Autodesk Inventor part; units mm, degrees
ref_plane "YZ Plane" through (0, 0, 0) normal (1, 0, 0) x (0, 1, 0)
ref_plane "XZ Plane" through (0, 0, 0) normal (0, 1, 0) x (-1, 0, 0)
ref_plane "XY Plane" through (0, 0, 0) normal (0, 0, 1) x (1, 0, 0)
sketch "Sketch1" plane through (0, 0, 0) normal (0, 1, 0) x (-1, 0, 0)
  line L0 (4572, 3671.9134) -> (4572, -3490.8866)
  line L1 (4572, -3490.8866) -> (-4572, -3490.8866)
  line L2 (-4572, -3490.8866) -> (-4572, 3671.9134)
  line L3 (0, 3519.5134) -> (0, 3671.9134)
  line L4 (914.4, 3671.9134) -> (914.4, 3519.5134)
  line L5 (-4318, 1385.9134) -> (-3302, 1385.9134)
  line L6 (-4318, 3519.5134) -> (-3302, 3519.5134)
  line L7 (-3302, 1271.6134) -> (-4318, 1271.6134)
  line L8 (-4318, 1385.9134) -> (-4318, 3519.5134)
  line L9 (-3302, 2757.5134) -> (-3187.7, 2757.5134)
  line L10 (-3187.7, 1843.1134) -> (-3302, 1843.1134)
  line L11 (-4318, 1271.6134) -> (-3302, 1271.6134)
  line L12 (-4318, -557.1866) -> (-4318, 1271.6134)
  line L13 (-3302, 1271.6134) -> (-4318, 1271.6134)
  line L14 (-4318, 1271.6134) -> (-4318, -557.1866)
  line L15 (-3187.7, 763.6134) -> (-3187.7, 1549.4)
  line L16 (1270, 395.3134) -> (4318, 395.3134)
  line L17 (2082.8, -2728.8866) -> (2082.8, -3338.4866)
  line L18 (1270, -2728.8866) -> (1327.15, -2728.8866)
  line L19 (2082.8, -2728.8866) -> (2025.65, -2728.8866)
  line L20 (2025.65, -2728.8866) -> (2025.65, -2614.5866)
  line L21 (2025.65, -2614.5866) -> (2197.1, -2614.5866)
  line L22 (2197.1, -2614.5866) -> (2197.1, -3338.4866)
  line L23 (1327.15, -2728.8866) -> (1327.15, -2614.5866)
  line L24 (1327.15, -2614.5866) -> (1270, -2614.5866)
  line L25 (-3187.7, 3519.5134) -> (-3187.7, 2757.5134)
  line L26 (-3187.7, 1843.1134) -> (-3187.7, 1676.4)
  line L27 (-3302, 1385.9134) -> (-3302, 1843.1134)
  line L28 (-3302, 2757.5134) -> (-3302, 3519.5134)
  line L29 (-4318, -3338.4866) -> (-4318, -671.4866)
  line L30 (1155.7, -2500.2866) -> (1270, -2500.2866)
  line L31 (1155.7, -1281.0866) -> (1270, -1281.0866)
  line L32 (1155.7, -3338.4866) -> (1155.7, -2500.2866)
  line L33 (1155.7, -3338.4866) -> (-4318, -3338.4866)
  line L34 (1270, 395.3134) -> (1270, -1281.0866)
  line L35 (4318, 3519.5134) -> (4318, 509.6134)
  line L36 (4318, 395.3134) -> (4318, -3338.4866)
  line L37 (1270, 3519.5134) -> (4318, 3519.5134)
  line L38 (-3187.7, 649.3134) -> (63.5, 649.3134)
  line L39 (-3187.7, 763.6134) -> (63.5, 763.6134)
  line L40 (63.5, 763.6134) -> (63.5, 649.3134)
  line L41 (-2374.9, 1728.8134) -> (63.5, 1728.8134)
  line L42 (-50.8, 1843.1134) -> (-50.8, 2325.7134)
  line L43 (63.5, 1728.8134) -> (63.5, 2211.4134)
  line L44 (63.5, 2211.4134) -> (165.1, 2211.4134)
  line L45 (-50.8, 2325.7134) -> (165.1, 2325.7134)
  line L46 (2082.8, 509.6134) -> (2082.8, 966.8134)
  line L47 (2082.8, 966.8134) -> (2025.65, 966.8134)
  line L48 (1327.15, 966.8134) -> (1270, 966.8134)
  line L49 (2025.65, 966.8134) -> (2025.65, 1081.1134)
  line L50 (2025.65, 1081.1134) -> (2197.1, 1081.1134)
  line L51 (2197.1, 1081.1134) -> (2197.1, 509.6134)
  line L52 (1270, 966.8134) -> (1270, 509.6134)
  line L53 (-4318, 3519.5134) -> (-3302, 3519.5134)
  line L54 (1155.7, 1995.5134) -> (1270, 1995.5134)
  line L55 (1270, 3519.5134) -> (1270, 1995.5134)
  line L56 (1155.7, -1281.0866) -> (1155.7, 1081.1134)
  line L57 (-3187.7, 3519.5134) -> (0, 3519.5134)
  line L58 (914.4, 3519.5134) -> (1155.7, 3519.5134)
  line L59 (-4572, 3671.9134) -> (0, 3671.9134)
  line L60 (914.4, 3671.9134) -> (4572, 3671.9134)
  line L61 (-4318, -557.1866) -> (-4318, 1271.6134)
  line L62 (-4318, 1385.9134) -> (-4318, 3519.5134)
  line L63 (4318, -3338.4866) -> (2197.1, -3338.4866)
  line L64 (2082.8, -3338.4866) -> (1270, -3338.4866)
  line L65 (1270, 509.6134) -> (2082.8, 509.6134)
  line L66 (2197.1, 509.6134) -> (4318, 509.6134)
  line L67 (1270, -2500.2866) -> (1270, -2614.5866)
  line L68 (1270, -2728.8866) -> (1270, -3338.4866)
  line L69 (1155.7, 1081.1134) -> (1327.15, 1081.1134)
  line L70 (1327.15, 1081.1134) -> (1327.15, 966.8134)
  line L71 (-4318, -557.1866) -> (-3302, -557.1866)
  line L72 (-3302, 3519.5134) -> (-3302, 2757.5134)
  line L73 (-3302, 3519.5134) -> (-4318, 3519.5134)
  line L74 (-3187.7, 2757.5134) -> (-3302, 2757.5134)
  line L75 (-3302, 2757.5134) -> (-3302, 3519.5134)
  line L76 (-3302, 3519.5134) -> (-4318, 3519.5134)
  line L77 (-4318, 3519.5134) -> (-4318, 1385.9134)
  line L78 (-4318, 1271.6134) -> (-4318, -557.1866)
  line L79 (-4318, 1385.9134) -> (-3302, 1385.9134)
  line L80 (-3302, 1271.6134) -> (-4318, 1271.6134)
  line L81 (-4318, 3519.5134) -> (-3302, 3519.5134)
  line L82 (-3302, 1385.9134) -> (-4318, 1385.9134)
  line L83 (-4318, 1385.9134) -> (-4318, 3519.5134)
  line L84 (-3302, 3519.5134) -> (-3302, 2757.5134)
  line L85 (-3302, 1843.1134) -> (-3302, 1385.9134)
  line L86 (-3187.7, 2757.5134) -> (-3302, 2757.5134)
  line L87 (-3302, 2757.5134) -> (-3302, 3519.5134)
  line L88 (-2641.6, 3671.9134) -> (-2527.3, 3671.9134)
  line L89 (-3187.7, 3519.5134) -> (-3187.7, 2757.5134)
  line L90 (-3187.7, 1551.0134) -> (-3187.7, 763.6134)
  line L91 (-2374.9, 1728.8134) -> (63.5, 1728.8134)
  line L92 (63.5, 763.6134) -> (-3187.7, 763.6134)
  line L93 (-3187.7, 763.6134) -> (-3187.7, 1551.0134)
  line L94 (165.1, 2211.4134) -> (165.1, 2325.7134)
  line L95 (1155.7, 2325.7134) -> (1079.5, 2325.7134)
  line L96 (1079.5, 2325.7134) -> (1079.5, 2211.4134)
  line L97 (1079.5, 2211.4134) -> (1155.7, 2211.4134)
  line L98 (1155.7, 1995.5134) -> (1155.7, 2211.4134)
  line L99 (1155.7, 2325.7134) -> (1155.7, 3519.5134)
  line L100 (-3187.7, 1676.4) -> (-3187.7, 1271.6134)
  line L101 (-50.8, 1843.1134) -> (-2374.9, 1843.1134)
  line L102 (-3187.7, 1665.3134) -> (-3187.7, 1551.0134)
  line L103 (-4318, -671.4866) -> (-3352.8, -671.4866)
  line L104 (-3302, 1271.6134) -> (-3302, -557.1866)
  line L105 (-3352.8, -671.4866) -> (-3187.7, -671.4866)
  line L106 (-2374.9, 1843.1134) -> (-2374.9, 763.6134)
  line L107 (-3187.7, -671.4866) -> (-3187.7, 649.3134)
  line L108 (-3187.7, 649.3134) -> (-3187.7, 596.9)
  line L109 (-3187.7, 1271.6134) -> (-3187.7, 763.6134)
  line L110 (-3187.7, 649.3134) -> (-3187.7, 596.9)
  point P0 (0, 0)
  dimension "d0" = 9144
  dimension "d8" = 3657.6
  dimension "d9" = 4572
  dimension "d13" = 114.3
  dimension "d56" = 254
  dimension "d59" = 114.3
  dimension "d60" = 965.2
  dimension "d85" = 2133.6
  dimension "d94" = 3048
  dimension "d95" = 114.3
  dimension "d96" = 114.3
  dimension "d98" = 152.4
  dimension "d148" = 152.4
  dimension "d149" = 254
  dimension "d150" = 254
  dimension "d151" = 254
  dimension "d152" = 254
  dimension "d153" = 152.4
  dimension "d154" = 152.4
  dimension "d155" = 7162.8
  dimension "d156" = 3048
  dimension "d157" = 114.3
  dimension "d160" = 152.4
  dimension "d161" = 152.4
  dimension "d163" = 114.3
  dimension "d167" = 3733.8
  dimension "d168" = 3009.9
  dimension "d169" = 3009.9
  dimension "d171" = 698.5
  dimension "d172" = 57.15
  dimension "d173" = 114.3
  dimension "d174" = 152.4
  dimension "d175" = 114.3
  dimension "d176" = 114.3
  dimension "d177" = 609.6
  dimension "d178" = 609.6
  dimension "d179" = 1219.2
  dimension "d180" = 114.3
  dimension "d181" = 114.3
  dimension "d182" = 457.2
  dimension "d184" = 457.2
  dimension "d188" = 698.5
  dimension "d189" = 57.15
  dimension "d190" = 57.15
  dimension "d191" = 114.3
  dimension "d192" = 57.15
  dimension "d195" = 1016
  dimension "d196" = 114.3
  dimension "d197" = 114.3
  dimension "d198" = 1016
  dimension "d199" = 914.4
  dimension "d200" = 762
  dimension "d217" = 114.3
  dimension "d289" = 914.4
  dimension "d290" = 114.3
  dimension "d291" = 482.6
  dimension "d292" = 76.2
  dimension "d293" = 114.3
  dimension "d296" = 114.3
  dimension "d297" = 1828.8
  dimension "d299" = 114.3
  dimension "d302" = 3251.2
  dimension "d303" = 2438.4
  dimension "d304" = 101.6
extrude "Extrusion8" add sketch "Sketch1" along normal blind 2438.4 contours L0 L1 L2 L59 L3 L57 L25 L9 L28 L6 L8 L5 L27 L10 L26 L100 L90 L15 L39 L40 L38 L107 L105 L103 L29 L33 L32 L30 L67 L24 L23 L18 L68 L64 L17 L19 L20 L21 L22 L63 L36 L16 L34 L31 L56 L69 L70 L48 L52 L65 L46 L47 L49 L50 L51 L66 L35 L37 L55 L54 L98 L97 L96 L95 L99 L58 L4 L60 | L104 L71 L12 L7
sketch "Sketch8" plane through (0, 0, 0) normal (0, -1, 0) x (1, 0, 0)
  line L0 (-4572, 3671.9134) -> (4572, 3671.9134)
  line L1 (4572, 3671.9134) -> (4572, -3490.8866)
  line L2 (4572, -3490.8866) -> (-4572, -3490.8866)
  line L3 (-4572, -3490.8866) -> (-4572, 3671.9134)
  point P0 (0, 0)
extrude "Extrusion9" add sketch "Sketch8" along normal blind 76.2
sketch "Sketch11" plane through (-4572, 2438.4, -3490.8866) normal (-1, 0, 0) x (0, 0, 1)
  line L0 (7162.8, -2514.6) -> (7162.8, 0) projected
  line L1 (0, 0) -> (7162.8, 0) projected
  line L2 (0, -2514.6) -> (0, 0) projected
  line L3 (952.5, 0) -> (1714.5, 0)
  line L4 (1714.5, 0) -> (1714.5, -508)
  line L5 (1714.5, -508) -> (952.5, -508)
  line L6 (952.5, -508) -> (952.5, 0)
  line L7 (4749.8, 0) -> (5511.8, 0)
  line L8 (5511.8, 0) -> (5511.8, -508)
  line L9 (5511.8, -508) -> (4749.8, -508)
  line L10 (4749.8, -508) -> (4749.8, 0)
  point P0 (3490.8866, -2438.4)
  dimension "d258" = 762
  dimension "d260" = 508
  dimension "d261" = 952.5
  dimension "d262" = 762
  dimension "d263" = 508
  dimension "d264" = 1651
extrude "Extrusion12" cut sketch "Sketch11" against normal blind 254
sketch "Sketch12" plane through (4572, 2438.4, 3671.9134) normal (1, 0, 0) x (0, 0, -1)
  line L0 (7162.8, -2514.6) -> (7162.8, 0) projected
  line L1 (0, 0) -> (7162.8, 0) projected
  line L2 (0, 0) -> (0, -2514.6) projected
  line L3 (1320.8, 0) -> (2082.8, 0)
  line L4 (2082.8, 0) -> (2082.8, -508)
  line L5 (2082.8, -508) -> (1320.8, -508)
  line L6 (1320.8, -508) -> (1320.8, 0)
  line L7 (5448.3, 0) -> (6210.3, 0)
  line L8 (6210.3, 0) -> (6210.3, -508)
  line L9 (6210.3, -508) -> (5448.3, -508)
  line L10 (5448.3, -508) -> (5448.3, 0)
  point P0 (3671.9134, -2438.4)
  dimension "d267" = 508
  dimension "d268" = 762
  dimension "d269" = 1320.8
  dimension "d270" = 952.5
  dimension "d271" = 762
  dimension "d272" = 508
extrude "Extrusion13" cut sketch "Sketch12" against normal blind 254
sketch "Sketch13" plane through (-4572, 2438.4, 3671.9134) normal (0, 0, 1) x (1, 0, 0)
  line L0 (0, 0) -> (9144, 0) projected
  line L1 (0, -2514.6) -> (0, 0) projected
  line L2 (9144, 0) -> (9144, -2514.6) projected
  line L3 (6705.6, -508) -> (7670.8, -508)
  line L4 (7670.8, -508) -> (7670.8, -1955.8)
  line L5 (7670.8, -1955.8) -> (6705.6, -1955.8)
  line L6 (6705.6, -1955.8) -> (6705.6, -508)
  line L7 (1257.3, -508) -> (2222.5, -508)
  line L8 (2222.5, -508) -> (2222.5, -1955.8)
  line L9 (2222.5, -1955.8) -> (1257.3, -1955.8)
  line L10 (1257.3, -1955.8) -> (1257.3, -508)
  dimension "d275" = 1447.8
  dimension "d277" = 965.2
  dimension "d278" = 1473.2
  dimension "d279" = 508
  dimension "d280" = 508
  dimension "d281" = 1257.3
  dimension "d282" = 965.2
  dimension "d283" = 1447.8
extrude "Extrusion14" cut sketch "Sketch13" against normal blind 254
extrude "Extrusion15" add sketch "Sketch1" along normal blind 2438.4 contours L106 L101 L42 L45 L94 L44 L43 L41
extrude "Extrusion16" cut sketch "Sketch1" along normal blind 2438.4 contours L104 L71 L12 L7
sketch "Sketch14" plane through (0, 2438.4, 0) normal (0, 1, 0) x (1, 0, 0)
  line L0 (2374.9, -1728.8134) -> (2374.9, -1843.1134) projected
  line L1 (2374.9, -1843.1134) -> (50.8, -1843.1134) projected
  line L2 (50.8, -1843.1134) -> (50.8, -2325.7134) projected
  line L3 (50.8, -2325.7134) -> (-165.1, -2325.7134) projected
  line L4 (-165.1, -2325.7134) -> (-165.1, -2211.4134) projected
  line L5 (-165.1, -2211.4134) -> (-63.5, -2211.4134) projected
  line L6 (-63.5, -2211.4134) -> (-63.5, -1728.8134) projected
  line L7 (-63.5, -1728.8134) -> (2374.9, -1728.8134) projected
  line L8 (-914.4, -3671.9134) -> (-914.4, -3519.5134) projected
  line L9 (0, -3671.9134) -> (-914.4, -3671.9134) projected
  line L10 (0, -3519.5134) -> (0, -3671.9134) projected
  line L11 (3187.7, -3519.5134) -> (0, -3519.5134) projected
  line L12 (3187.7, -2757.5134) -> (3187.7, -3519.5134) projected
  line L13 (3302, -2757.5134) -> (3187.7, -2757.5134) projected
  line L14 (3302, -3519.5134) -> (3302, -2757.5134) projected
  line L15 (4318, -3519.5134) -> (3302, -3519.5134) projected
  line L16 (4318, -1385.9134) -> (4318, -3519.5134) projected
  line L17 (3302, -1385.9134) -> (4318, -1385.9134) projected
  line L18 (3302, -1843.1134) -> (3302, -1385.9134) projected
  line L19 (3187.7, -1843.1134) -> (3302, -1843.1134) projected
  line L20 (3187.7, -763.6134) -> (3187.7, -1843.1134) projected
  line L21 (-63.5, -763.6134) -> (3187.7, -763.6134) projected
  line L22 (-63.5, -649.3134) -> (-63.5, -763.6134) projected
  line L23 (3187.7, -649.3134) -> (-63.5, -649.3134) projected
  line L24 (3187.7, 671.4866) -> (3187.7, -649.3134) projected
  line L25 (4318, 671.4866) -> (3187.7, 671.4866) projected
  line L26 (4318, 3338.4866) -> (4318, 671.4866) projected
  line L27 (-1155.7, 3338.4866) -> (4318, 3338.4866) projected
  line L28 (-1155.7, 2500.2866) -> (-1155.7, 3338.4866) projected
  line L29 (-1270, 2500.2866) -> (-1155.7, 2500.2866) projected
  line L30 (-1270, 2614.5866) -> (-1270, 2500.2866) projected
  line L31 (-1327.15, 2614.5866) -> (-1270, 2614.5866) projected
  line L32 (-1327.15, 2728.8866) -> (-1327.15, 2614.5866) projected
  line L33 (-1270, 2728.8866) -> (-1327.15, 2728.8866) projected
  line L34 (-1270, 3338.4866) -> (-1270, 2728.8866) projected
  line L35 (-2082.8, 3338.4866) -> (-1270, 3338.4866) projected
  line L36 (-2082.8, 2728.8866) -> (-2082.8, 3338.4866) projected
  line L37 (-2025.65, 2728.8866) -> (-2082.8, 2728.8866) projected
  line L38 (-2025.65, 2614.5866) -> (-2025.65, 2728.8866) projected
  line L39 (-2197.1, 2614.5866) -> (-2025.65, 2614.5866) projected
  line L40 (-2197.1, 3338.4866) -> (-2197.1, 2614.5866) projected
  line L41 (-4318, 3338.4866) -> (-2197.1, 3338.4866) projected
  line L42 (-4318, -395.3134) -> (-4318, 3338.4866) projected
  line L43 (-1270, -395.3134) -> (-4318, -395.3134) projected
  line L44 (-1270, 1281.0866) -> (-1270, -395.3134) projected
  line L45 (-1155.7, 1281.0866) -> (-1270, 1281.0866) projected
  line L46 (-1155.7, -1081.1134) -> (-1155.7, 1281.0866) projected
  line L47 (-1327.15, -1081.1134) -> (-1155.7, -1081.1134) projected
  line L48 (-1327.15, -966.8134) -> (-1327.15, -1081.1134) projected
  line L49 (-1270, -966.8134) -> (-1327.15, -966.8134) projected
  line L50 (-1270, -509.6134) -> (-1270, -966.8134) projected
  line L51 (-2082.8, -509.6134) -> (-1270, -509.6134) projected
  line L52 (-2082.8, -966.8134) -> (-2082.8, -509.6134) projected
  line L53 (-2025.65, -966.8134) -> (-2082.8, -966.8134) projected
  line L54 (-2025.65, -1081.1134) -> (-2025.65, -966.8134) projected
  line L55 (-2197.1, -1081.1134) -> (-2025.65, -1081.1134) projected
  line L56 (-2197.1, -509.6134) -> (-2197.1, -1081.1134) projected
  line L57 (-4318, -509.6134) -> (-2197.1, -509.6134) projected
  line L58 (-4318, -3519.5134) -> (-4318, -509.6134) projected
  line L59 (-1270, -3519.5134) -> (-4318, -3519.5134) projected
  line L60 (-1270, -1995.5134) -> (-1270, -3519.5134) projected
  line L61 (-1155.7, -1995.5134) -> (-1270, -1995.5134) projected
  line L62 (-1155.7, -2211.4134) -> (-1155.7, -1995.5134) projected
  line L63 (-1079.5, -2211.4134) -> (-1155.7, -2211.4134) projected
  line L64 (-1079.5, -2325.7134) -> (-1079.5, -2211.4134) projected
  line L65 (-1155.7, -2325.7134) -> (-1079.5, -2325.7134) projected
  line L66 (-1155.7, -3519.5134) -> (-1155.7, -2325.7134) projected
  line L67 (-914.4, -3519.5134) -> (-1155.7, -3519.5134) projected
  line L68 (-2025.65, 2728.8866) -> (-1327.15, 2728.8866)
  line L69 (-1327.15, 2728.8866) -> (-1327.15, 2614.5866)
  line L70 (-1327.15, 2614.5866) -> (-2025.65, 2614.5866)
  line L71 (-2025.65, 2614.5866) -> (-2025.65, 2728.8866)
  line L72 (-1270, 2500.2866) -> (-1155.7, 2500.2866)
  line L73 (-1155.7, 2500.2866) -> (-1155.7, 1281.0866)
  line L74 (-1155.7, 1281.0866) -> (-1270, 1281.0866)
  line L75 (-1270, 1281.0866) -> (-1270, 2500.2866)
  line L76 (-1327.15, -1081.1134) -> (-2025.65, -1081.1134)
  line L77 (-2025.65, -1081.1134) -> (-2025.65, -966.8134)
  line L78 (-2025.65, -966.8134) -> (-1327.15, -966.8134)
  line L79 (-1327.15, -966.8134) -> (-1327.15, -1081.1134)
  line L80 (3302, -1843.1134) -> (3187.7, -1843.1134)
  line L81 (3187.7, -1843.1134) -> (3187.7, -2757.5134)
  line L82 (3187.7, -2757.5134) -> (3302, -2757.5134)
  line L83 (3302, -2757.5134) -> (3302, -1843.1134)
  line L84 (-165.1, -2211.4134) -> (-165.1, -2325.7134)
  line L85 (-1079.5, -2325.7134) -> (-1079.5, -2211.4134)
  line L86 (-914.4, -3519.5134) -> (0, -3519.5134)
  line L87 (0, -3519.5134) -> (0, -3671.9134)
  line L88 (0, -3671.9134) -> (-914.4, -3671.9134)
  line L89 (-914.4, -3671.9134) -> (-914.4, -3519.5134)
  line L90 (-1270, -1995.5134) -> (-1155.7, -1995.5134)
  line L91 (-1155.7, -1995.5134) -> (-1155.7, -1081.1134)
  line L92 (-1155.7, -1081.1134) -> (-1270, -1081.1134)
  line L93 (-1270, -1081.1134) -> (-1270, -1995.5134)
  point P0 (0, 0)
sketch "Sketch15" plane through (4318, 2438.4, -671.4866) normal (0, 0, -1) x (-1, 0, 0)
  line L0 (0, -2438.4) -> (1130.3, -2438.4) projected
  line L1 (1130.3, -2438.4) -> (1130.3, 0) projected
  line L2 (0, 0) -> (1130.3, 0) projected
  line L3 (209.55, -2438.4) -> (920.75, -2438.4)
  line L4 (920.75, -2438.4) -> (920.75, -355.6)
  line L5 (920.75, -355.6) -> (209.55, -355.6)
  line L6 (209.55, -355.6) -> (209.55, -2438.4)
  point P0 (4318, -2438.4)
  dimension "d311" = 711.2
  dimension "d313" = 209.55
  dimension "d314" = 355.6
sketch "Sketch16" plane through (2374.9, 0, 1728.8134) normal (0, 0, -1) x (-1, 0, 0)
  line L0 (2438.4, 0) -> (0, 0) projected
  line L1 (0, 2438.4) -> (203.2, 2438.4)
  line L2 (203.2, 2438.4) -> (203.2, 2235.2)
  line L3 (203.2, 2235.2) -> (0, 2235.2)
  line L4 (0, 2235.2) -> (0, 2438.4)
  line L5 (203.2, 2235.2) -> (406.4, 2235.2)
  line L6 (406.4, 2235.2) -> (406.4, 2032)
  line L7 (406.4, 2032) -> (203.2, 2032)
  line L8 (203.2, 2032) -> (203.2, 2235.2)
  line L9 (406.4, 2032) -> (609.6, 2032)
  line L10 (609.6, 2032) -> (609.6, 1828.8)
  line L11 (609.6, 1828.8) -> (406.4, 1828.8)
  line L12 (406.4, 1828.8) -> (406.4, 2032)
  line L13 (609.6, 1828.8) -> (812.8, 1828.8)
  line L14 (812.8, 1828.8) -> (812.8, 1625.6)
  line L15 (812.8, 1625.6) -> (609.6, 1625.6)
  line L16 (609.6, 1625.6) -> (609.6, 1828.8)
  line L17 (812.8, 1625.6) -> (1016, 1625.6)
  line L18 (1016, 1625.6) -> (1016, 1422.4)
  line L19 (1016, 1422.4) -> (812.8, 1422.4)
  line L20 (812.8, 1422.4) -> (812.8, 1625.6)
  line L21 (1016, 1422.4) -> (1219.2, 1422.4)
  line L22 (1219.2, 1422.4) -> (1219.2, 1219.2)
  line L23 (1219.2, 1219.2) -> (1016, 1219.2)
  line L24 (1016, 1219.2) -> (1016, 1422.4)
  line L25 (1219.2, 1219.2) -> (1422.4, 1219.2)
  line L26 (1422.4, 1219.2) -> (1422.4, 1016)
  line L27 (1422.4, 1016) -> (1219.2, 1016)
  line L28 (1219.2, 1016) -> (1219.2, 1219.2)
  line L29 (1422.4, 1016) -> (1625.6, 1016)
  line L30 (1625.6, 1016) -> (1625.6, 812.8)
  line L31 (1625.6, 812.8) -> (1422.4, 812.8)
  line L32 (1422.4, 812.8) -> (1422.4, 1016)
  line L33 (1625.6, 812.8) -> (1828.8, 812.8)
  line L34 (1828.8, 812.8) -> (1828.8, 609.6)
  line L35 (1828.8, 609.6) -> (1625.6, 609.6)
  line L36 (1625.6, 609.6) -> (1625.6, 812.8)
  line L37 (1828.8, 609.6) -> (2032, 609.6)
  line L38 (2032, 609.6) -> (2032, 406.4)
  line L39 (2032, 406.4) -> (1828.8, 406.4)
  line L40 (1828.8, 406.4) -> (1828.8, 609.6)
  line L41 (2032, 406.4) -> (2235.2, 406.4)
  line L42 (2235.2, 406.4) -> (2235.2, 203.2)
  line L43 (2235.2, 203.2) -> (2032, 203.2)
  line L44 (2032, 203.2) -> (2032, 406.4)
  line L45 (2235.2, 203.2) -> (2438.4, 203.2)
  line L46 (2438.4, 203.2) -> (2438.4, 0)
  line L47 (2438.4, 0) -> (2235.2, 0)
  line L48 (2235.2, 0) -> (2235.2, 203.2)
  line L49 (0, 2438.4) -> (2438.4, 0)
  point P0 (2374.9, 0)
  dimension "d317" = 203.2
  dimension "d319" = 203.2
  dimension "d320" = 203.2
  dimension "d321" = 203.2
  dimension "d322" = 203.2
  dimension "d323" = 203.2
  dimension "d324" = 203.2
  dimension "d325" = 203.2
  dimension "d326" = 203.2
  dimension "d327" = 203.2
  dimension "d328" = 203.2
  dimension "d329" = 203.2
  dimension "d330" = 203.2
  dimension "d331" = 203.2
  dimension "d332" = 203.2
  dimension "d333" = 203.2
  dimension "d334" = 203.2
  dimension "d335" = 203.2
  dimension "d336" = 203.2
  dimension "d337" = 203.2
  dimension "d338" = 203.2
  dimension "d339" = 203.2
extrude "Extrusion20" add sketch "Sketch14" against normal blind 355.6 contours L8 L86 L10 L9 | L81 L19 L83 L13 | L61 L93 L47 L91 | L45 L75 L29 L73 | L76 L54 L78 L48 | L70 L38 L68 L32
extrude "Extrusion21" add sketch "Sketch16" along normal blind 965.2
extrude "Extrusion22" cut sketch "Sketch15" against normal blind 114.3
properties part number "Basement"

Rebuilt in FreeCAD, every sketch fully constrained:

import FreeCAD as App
import Part
import Sketcher

V = App.Vector
Q = App.Units.Quantity


def add_polygon(sketch, points):
    """Adds a closed chain of lines whose ends are joined by coincident constraints."""
    first, n = sketch.GeometryCount, len(points)
    for a, b in zip(points, points[1:] + points[:1]):
        sketch.addGeometry(Part.LineSegment(App.Vector(*a, 0), App.Vector(*b, 0)), False)
    for i in range(n):
        sketch.addConstraint(Sketcher.Constraint("Coincident", first + i, 2, first + (i + 1) % n, 1))

doc = App.newDocument("Part")
body = doc.addObject("PartDesign::Body", "Body")

sketch1 = doc.addObject("Sketcher::SketchObject", "Sketch")
body.addObject(sketch1)
sketch1.AttachmentSupport = (doc.XZ_Plane, [""])
sketch1.MapMode = "FlatFace"
add_polygon(sketch1, [(-4572, -3490.8866), (-4572, 3671.9134), (-914.4, 3671.9134), (-914.4, 3519.5134), (-1155.7, 3519.5134), (-1155.7, 2325.7134), (-1079.5, 2325.7134), (-1079.5, 2211.4134), (-1155.7, 2211.4134), (-1155.7, 1995.5134), (-1270, 1995.5134), (-1270, 3519.5134), (-4318, 3519.5134), (-4318, 509.6134), (-2197.1, 509.6134), (-2197.1, 1081.1134), (-2025.65, 1081.1134), (-2025.65, 966.8134), (-2082.8, 966.8134), (-2082.8, 509.6134), (-1270, 509.6134), (-1270, 966.8134), (-1327.15, 966.8134), (-1327.15, 1081.1134), (-1155.7, 1081.1134), (-1155.7, -1281.0866), (-1270, -1281.0866), (-1270, 395.3134), (-4318, 395.3134), (-4318, -3338.4866), (-2197.1, -3338.4866), (-2197.1, -2614.5866), (-2025.65, -2614.5866), (-2025.65, -2728.8866), (-2082.8, -2728.8866), (-2082.8, -3338.4866), (-1270, -3338.4866), (-1270, -2728.8866), (-1327.15, -2728.8866), (-1327.15, -2614.5866), (-1270, -2614.5866), (-1270, -2500.2866), (-1155.7, -2500.2866), (-1155.7, -3338.4866), (4318, -3338.4866), (4318, -671.4866), (3187.7, -671.4866), (3187.7, 649.3134), (-63.5, 649.3134), (-63.5, 763.6134), (3187.7, 763.6134), (3187.7, 1843.1134), (3302, 1843.1134), (3302, 1385.9134), (4318, 1385.9134), (4318, 3519.5134), (3302, 3519.5134), (3302, 2757.5134), (3187.7, 2757.5134), (3187.7, 3519.5134), (0, 3519.5134), (0, 3671.9134), (4572, 3671.9134), (4572, -3490.8866)])
sketch1.addConstraint([
    Sketcher.Constraint("Vertical", 0),
    Sketcher.Constraint("Horizontal", 1),
    Sketcher.Constraint("Vertical", 2),
    Sketcher.Constraint("Horizontal", 3),
    Sketcher.Constraint("Vertical", 4),
    Sketcher.Constraint("Horizontal", 5),
    Sketcher.Constraint("Vertical", 6),
    Sketcher.Constraint("Horizontal", 7),
    Sketcher.Constraint("Vertical", 8),
    Sketcher.Constraint("Horizontal", 9),
    Sketcher.Constraint("Vertical", 10),
    Sketcher.Constraint("Horizontal", 11),
    Sketcher.Constraint("Vertical", 12),
    Sketcher.Constraint("Horizontal", 13),
    Sketcher.Constraint("Vertical", 14),
    Sketcher.Constraint("Horizontal", 15),
    Sketcher.Constraint("Vertical", 16),
    Sketcher.Constraint("Horizontal", 17),
    Sketcher.Constraint("Vertical", 18),
    Sketcher.Constraint("Horizontal", 19),
    Sketcher.Constraint("Vertical", 20),
    Sketcher.Constraint("Horizontal", 21),
    Sketcher.Constraint("Vertical", 22),
    Sketcher.Constraint("Horizontal", 23),
    Sketcher.Constraint("Vertical", 24),
    Sketcher.Constraint("Horizontal", 25),
    Sketcher.Constraint("Vertical", 26),
    Sketcher.Constraint("Horizontal", 27),
    Sketcher.Constraint("Vertical", 28),
    Sketcher.Constraint("Horizontal", 29),
    Sketcher.Constraint("Vertical", 30),
    Sketcher.Constraint("Horizontal", 31),
    Sketcher.Constraint("Vertical", 32),
    Sketcher.Constraint("Horizontal", 33),
    Sketcher.Constraint("Vertical", 34),
    Sketcher.Constraint("Horizontal", 35),
    Sketcher.Constraint("Vertical", 36),
    Sketcher.Constraint("Horizontal", 37),
    Sketcher.Constraint("Vertical", 38),
    Sketcher.Constraint("Horizontal", 39),
    Sketcher.Constraint("Vertical", 40),
    Sketcher.Constraint("Horizontal", 41),
    Sketcher.Constraint("Vertical", 42),
    Sketcher.Constraint("Horizontal", 43),
    Sketcher.Constraint("Vertical", 44),
    Sketcher.Constraint("Horizontal", 45),
    Sketcher.Constraint("Vertical", 46),
    Sketcher.Constraint("Horizontal", 47),
    Sketcher.Constraint("Vertical", 48),
    Sketcher.Constraint("Horizontal", 49),
    Sketcher.Constraint("Vertical", 50),
    Sketcher.Constraint("Horizontal", 51),
    Sketcher.Constraint("Vertical", 52),
    Sketcher.Constraint("Horizontal", 53),
    Sketcher.Constraint("Vertical", 54),
    Sketcher.Constraint("Horizontal", 55),
    Sketcher.Constraint("Vertical", 56),
    Sketcher.Constraint("Horizontal", 57),
    Sketcher.Constraint("Vertical", 58),
    Sketcher.Constraint("Horizontal", 59),
    Sketcher.Constraint("Vertical", 60),
    Sketcher.Constraint("Horizontal", 61),
    Sketcher.Constraint("Vertical", 62),
    Sketcher.Constraint("Horizontal", 63),
    Sketcher.Constraint("Symmetric", 28, 2, 43, 2, -2),
    Sketcher.Constraint("Symmetric", 11, 2, 54, 2, -2),
    Sketcher.Constraint("Symmetric", 0, 2, 61, 2, -2),
    Sketcher.Constraint("PointOnObject", 59, 2, -2),
    Sketcher.Constraint("Horizontal", 3, 2, 10, 2),
    Sketcher.Constraint("Horizontal", 13, 2, 18, 2),
    Sketcher.Constraint("Horizontal", 17, 2, 20, 2),
    Sketcher.Constraint("Horizontal", 15, 2, 22, 2),
    Sketcher.Constraint("Horizontal", 29, 2, 34, 2),
    Sketcher.Constraint("Horizontal", 33, 2, 36, 2),
    Sketcher.Constraint("Horizontal", 31, 2, 38, 2),
    Sketcher.Constraint("Horizontal", 55, 2, 58, 2),
    Sketcher.Constraint("Vertical", 4, 2, 7, 2),
    Sketcher.Constraint("Vertical", 10, 2, 19, 2),
    Sketcher.Constraint("Vertical", 8, 2, 23, 2),
    Sketcher.Constraint("Vertical", 20, 2, 25, 2),
    Sketcher.Constraint("Vertical", 12, 2, 27, 2),
    Sketcher.Constraint("Vertical", 14, 2, 29, 2),
    Sketcher.Constraint("Vertical", 16, 2, 31, 2),
    Sketcher.Constraint("Vertical", 18, 2, 33, 2),
    Sketcher.Constraint("Vertical", 26, 2, 35, 2),
    Sketcher.Constraint("Vertical", 22, 2, 37, 2),
    Sketcher.Constraint("Vertical", 36, 2, 39, 2),
    Sketcher.Constraint("Vertical", 24, 2, 41, 2),
    Sketcher.Constraint("Vertical", 46, 2, 49, 2),
    Sketcher.Constraint("Vertical", 52, 2, 55, 2),
    Sketcher.Constraint("Vertical", 50, 2, 57, 2),
    Sketcher.Constraint("Equal", 17, 21),
    Sketcher.Constraint("Equal", 15, 23),
    Sketcher.Constraint("Equal", 41, 51),
    Sketcher.Constraint("Equal", 57, 6),
    Sketcher.Constraint("Equal", 6, 16),
    Sketcher.Constraint("Equal", 22, 32),
    Sketcher.Constraint("Equal", 38, 40),
    Sketcher.Constraint("Equal", 40, 48),
    Sketcher.Constraint("Equal", 20, 52),
    Sketcher.Constraint("DistanceX", 1, 1, 1, 2, Q("144 in")),
    Sketcher.Constraint("DistanceX", 5, 1, 5, 2, Q("3 in")),
    Sketcher.Constraint("DistanceX", 11, 2, 11, 1, Q("120 in")),
    Sketcher.Constraint("DistanceX", 47, 2, 47, 1, Q("128 in")),
    Sketcher.Constraint("DistanceX", 53, 1, 53, 2, Q("40 in")),
    Sketcher.Constraint("DistanceX", 61, 1, 61, 2, Q("180 in")),
    Sketcher.Constraint("DistanceY", 0, 1, 0, 2, Q("282 in")),
    Sketcher.Constraint("DistanceY", 2, 2, 2, 1, Q("6 in")),
    Sketcher.Constraint("DistanceY", 18, 2, 18, 1, Q("18 in")),
    Sketcher.Constraint("DistanceY", 28, 2, 28, 1, Q("147 in")),
    Sketcher.Constraint("DistanceY", 34, 2, 34, 1, Q("24 in")),
    Sketcher.Constraint("DistanceY", 54, 1, 54, 2, Q("84 in")),
    Sketcher.Constraint("DistanceY", 56, 2, 56, 1, Q("30 in")),
    Sketcher.Constraint("DistanceX", 9, 2, 9, 1, Q("4.5 in")),
    Sketcher.Constraint("DistanceY", 12, 2, 12, 1, Q("118.5 in")),
    Sketcher.Constraint("DistanceX", 17, 2, 17, 1, Q("2.25 in")),
    Sketcher.Constraint("DistanceX", 19, 1, 19, 2, Q("32 in")),
    Sketcher.Constraint("DistanceY", 4, 2, 4, 1, Q("47 in")),
    Sketcher.Constraint("DistanceY", 10, 1, 10, 2, Q("60 in")),
    Sketcher.Constraint("DistanceY", 24, 2, 24, 1, Q("93 in")),
    Sketcher.Constraint("DistanceY", 26, 1, 26, 2, Q("66 in")),
    Sketcher.Constraint("DistanceY", 44, 1, 44, 2, Q("105 in")),
    Sketcher.Constraint("DistanceY", 46, 1, 46, 2, Q("52 in")),
    Sketcher.Constraint("DistanceX", 3, 2, 3, 1, Q("9.5 in")),
    Sketcher.Constraint("DistanceY", -1, 1, 0, 2, 3671.9134),
])
pad1 = doc.addObject("PartDesign::Pad", "Pad")
body.addObject(pad1)
pad1.Profile = sketch1
pad1.Length = Q("96 in")
pad1.Reversed = True

sketch2 = doc.addObject("Sketcher::SketchObject", "Sketch001")
body.addObject(sketch2)
sketch2.AttachmentSupport = (doc.XZ_Plane, [""])
sketch2.MapMode = "FlatFace"
add_polygon(sketch2, [(4572, 3671.9134), (-4572, 3671.9134), (-4572, -3490.8866), (4572, -3490.8866)])
sketch2.addConstraint([
    Sketcher.Constraint("Horizontal", 0),
    Sketcher.Constraint("Vertical", 1),
    Sketcher.Constraint("Horizontal", 2),
    Sketcher.Constraint("Vertical", 3),
    Sketcher.Constraint("DistanceX", 0, 2, 0, 1, Q("360 in")),
    Sketcher.Constraint("DistanceY", 1, 2, 1, 1, Q("282 in")),
    Sketcher.Constraint("DistanceX", 0, 2, -1, 1, Q("180 in")),
    Sketcher.Constraint("DistanceY", -1, 1, 0, 2, 3671.9134),
])
pad2 = doc.addObject("PartDesign::Pad", "Pad001")
body.addObject(pad2)
pad2.Profile = sketch2
pad2.Length = Q("3 in")

sketch3 = doc.addObject("Sketcher::SketchObject", "Sketch002")
body.addObject(sketch3)
sketch3.AttachmentSupport = (doc.YZ_Plane, [""])
sketch3.MapMode = "FlatFace"
sketch3.AttachmentOffset = App.Placement(V(0, 0, -180 * 25.4), App.Rotation())
add_polygon(sketch3, [(2438.4, 2020.9134), (2438.4, 1258.9134), (1930.4, 1258.9134), (1930.4, 2020.9134)])
add_polygon(sketch3, [(2438.4, -1776.3866), (2438.4, -2538.3866), (1930.4, -2538.3866), (1930.4, -1776.3866)])
sketch3.addConstraint([
    Sketcher.Constraint("Vertical", 0),
    Sketcher.Constraint("Horizontal", 1),
    Sketcher.Constraint("Vertical", 2),
    Sketcher.Constraint("Horizontal", 3),
    Sketcher.Constraint("Vertical", 4),
    Sketcher.Constraint("Horizontal", 5),
    Sketcher.Constraint("Vertical", 6),
    Sketcher.Constraint("Horizontal", 7),
    Sketcher.Constraint("Vertical", 3, 2, 4, 2),
    Sketcher.Constraint("Vertical", 2, 2, 5, 2),
    Sketcher.Constraint("Equal", 2, 4),
    Sketcher.Constraint("DistanceX", 1, 2, 1, 1, Q("20 in")),
    Sketcher.Constraint("DistanceY", 0, 2, 0, 1, Q("30 in")),
    Sketcher.Constraint("DistanceX", -1, 1, 0, 2, Q("96 in")),
    Sketcher.Constraint("DistanceY", 4, 2, 0, 2, Q("149.5 in")),
    Sketcher.Constraint("DistanceY", -1, 1, 0, 2, 1258.9134),
])
pocket1 = doc.addObject("PartDesign::Pocket", "Pocket")
body.addObject(pocket1)
pocket1.Profile = sketch3
pocket1.Length = Q("10 in")
pocket1.Reversed = True

sketch4 = doc.addObject("Sketcher::SketchObject", "Sketch003")
body.addObject(sketch4)
sketch4.AttachmentSupport = (doc.YZ_Plane, [""])
sketch4.MapMode = "FlatFace"
sketch4.AttachmentOffset = App.Placement(V(0, 0, 180 * 25.4), App.Rotation())
add_polygon(sketch4, [(2438.4, -2538.3866), (2438.4, -1776.3866), (1930.4, -1776.3866), (1930.4, -2538.3866)])
add_polygon(sketch4, [(2438.4, 1589.1134), (2438.4, 2351.1134), (1930.4, 2351.1134), (1930.4, 1589.1134)])
sketch4.addConstraint([
    Sketcher.Constraint("Vertical", 0),
    Sketcher.Constraint("Horizontal", 1),
    Sketcher.Constraint("Vertical", 2),
    Sketcher.Constraint("Horizontal", 3),
    Sketcher.Constraint("Vertical", 4),
    Sketcher.Constraint("Horizontal", 5),
    Sketcher.Constraint("Vertical", 6),
    Sketcher.Constraint("Horizontal", 7),
    Sketcher.Constraint("Vertical", 3, 2, 4, 2),
    Sketcher.Constraint("Vertical", 2, 2, 5, 2),
    Sketcher.Constraint("Equal", 2, 4),
    Sketcher.Constraint("DistanceX", 1, 2, 1, 1, Q("20 in")),
    Sketcher.Constraint("DistanceY", 0, 1, 0, 2, Q("30 in")),
    Sketcher.Constraint("DistanceX", -1, 1, 0, 2, Q("96 in")),
    Sketcher.Constraint("DistanceY", 0, 2, 4, 2, Q("162.5 in")),
    Sketcher.Constraint("DistanceY", 0, 2, -1, 1, 1776.3866),
])
pocket2 = doc.addObject("PartDesign::Pocket", "Pocket001")
body.addObject(pocket2)
pocket2.Profile = sketch4
pocket2.Length = Q("10 in")

sketch5 = doc.addObject("Sketcher::SketchObject", "Sketch004")
body.addObject(sketch5)
sketch5.AttachmentSupport = (doc.XY_Plane, [""])
sketch5.MapMode = "FlatFace"
sketch5.AttachmentOffset = App.Placement(V(0, 0, 3671.9134), App.Rotation())
add_polygon(sketch5, [(3098.8, 1930.4), (2133.6, 1930.4), (2133.6, 482.6), (3098.8, 482.6)])
add_polygon(sketch5, [(-2349.5, 1930.4), (-3314.7, 1930.4), (-3314.7, 482.6), (-2349.5, 482.6)])
sketch5.addConstraint([
    Sketcher.Constraint("Horizontal", 0),
    Sketcher.Constraint("Vertical", 1),
    Sketcher.Constraint("Horizontal", 2),
    Sketcher.Constraint("Vertical", 3),
    Sketcher.Constraint("Horizontal", 4),
    Sketcher.Constraint("Vertical", 5),
    Sketcher.Constraint("Horizontal", 6),
    Sketcher.Constraint("Vertical", 7),
    Sketcher.Constraint("Horizontal", 3, 2, 4, 2),
    Sketcher.Constraint("Horizontal", 2, 2, 5, 2),
    Sketcher.Constraint("Equal", 2, 4),
    Sketcher.Constraint("DistanceX", 0, 2, 0, 1, Q("38 in")),
    Sketcher.Constraint("DistanceY", 1, 2, 1, 1, Q("57 in")),
    Sketcher.Constraint("DistanceX", -1, 1, 0, 2, Q("84 in")),
    Sketcher.Constraint("DistanceY", -1, 1, 0, 2, Q("76 in")),
    Sketcher.Constraint("DistanceX", 4, 2, -1, 1, Q("130.5 in")),
])
pocket3 = doc.addObject("PartDesign::Pocket", "Pocket002")
body.addObject(pocket3)
pocket3.Profile = sketch5
pocket3.Length = Q("10 in")

sketch6 = doc.addObject("Sketcher::SketchObject", "Sketch005")
body.addObject(sketch6)
sketch6.AttachmentSupport = (doc.XZ_Plane, [""])
sketch6.MapMode = "FlatFace"
add_polygon(sketch6, [(2374.9, 1843.1134), (2374.9, 1728.8134), (-63.5, 1728.8134), (-63.5, 2211.4134), (-165.1, 2211.4134), (-165.1, 2325.7134), (50.8, 2325.7134), (50.8, 1843.1134)])
sketch6.addConstraint([
    Sketcher.Constraint("Vertical", 0),
    Sketcher.Constraint("Horizontal", 1),
    Sketcher.Constraint("Vertical", 2),
    Sketcher.Constraint("Horizontal", 3),
    Sketcher.Constraint("Vertical", 4),
    Sketcher.Constraint("Horizontal", 5),
    Sketcher.Constraint("Vertical", 6),
    Sketcher.Constraint("Horizontal", 7),
    Sketcher.Constraint("Equal", 0, 4),
    Sketcher.Constraint("DistanceX", 1, 2, 1, 1, Q("96 in")),
    Sketcher.Constraint("DistanceX", 3, 2, 3, 1, Q("4 in")),
    Sketcher.Constraint("DistanceY", 2, 1, 2, 2, Q("19 in")),
    Sketcher.Constraint("DistanceY", 0, 2, 0, 1, Q("4.5 in")),
    Sketcher.Constraint("DistanceX", 2, 2, 5, 2, Q("4.5 in")),
    Sketcher.Constraint("DistanceX", -1, 1, 5, 2, Q("2 in")),
    Sketcher.Constraint("DistanceY", -1, 1, 0, 2, 1728.8134),
])
pad3 = doc.addObject("PartDesign::Pad", "Pad002")
body.addObject(pad3)
pad3.Profile = sketch6
pad3.Length = Q("96 in")
pad3.Reversed = True

sketch7 = doc.addObject("Sketcher::SketchObject", "Sketch006")
body.addObject(sketch7)
sketch7.AttachmentSupport = (doc.XZ_Plane, [""])
sketch7.MapMode = "FlatFace"
add_polygon(sketch7, [(3302, -557.1866), (3302, 1271.6134), (4318, 1271.6134), (4318, -557.1866)])
sketch7.addConstraint([
    Sketcher.Constraint("Vertical", 0),
    Sketcher.Constraint("Horizontal", 1),
    Sketcher.Constraint("Vertical", 2),
    Sketcher.Constraint("Horizontal", 3),
    Sketcher.Constraint("DistanceX", 1, 1, 1, 2, Q("40 in")),
    Sketcher.Constraint("DistanceY", 0, 1, 0, 2, Q("72 in")),
    Sketcher.Constraint("DistanceX", -1, 1, 0, 2, Q("130 in")),
    Sketcher.Constraint("DistanceY", -1, 1, 0, 2, 1271.6134),
])
pocket4 = doc.addObject("PartDesign::Pocket", "Pocket003")
body.addObject(pocket4)
pocket4.Profile = sketch7
pocket4.Length = Q("96 in")

sketch8 = doc.addObject("Sketcher::SketchObject", "Sketch007")
body.addObject(sketch8)
sketch8.AttachmentSupport = (doc.XZ_Plane, [""])
sketch8.MapMode = "FlatFace"
sketch8.AttachmentOffset = App.Placement(V(0, 0, -96 * 25.4), App.Rotation())
add_polygon(sketch8, [(-914.4, 3519.5134), (-914.4, 3671.9134), (0, 3671.9134), (0, 3519.5134)])
add_polygon(sketch8, [(3187.7, 1843.1134), (3187.7, 2757.5134), (3302, 2757.5134), (3302, 1843.1134)])
add_polygon(sketch8, [(-1270, 1995.5134), (-1155.7, 1995.5134), (-1155.7, 1081.1134), (-1270, 1081.1134)])
add_polygon(sketch8, [(-1270, -1281.0866), (-1155.7, -1281.0866), (-1155.7, -2500.2866), (-1270, -2500.2866)])
add_polygon(sketch8, [(-2025.65, 1081.1134), (-1327.15, 1081.1134), (-1327.15, 966.8134), (-2025.65, 966.8134)])
add_polygon(sketch8, [(-2025.65, -2614.5866), (-1327.15, -2614.5866), (-1327.15, -2728.8866), (-2025.65, -2728.8866)])
sketch8.addConstraint([
    Sketcher.Constraint("Vertical", 0),
    Sketcher.Constraint("Horizontal", 1),
    Sketcher.Constraint("Vertical", 2),
    Sketcher.Constraint("Horizontal", 3),
    Sketcher.Constraint("Vertical", 4),
    Sketcher.Constraint("Horizontal", 5),
    Sketcher.Constraint("Vertical", 6),
    Sketcher.Constraint("Horizontal", 7),
    Sketcher.Constraint("Horizontal", 8),
    Sketcher.Constraint("Vertical", 9),
    Sketcher.Constraint("Horizontal", 10),
    Sketcher.Constraint("Vertical", 11),
    Sketcher.Constraint("Horizontal", 12),
    Sketcher.Constraint("Vertical", 13),
    Sketcher.Constraint("Horizontal", 14),
    Sketcher.Constraint("Vertical", 15),
    Sketcher.Constraint("Horizontal", 16),
    Sketcher.Constraint("Vertical", 17),
    Sketcher.Constraint("Horizontal", 18),
    Sketcher.Constraint("Vertical", 19),
    Sketcher.Constraint("Horizontal", 20),
    Sketcher.Constraint("Vertical", 21),
    Sketcher.Constraint("Horizontal", 22),
    Sketcher.Constraint("Vertical", 23),
    Sketcher.Constraint("PointOnObject", 1, 2, -2),
    Sketcher.Constraint("Horizontal", 10, 2, 16, 2),
    Sketcher.Constraint("Vertical", 9, 2, 12, 2),
    Sketcher.Constraint("Vertical", 11, 2, 14, 2),
    Sketcher.Constraint("Vertical", 17, 2, 20, 2),
    Sketcher.Constraint("Vertical", 19, 2, 22, 2),
    Sketcher.Constraint("Equal", 7, 8),
    Sketcher.Constraint("Equal", 3, 4),
    Sketcher.Constraint("Equal", 6, 9),
    Sketcher.Constraint("Equal", 14, 17),
    Sketcher.Constraint("Equal", 19, 21),
    Sketcher.Constraint("DistanceX", 1, 1, 1, 2, Q("36 in")),
    Sketcher.Constraint("DistanceY", 0, 1, 0, 2, Q("6 in")),
    Sketcher.Constraint("DistanceY", 13, 2, 13, 1, Q("48 in")),
    Sketcher.Constraint("DistanceX", 5, 1, 5, 2, Q("4.5 in")),
    Sketcher.Constraint("DistanceX", 16, 1, 16, 2, Q("27.5 in")),
    Sketcher.Constraint("DistanceX", -1, 1, 5, 2, Q("130 in")),
    Sketcher.Constraint("DistanceX", 10, 2, -1, 1, Q("50 in")),
    Sketcher.Constraint("DistanceY", 4, 2, 2, 2, Q("30 in")),
    Sketcher.Constraint("DistanceY", 8, 2, 3, 2, Q("60 in")),
    Sketcher.Constraint("DistanceY", 12, 2, 9, 2, Q("93 in")),
    Sketcher.Constraint("DistanceY", 20, 2, 17, 2, Q("141 in")),
    Sketcher.Constraint("DistanceX", 16, 2, -1, 1, Q("52.25 in")),
    Sketcher.Constraint("DistanceY", -1, 1, 0, 2, 3671.9134),
])
pad4 = doc.addObject("PartDesign::Pad", "Pad003")
body.addObject(pad4)
pad4.Profile = sketch8
pad4.Length = Q("14 in")

sketch9 = doc.addObject("Sketcher::SketchObject", "Sketch008")
body.addObject(sketch9)
sketch9.AttachmentSupport = (doc.XY_Plane, [""])
sketch9.MapMode = "FlatFace"
sketch9.AttachmentOffset = App.Placement(V(0, 0, 1728.8134), App.Rotation())
add_polygon(sketch9, [(2374.9, 2235.2), (2171.7, 2235.2), (2171.7, 2438.4), (2374.9, 2438.4)])
add_polygon(sketch9, [(2171.7, 2032), (1968.5, 2032), (1968.5, 2235.2), (2171.7, 2235.2)])
add_polygon(sketch9, [(1968.5, 1828.8), (1765.3, 1828.8), (1765.3, 2032), (1968.5, 2032)])
add_polygon(sketch9, [(1765.3, 1625.6), (1562.1, 1625.6), (1562.1, 1828.8), (1765.3, 1828.8)])
add_polygon(sketch9, [(1562.1, 1422.4), (1358.9, 1422.4), (1358.9, 1625.6), (1562.1, 1625.6)])
add_polygon(sketch9, [(1358.9, 1219.2), (1155.7, 1219.2), (1155.7, 1422.4), (1358.9, 1422.4)])
add_polygon(sketch9, [(1155.7, 1016), (952.5, 1016), (952.5, 1219.2), (1155.7, 1219.2)])
add_polygon(sketch9, [(952.5, 812.8), (749.3, 812.8), (749.3, 1016), (952.5, 1016)])
add_polygon(sketch9, [(749.3, 609.6), (546.1, 609.6), (546.1, 812.8), (749.3, 812.8)])
add_polygon(sketch9, [(546.1, 406.4), (342.9, 406.4), (342.9, 609.6), (546.1, 609.6)])
add_polygon(sketch9, [(342.9, 203.2), (139.7, 203.2), (139.7, 406.4), (342.9, 406.4)])
add_polygon(sketch9, [(-63.5, 203.2), (139.7, 203.2), (139.7, 0), (-63.5, 0)])
sketch9.addConstraint([
    Sketcher.Constraint("Horizontal", 0),
    Sketcher.Constraint("Vertical", 1),
    Sketcher.Constraint("Horizontal", 2),
    Sketcher.Constraint("Vertical", 3),
    Sketcher.Constraint("Horizontal", 4),
    Sketcher.Constraint("Vertical", 5),
    Sketcher.Constraint("Horizontal", 6),
    Sketcher.Constraint("Vertical", 7),
    Sketcher.Constraint("Horizontal", 8),
    Sketcher.Constraint("Vertical", 9),
    Sketcher.Constraint("Horizontal", 10),
    Sketcher.Constraint("Vertical", 11),
    Sketcher.Constraint("Horizontal", 12),
    Sketcher.Constraint("Vertical", 13),
    Sketcher.Constraint("Horizontal", 14),
    Sketcher.Constraint("Vertical", 15),
    Sketcher.Constraint("Horizontal", 16),
    Sketcher.Constraint("Vertical", 17),
    Sketcher.Constraint("Horizontal", 18),
    Sketcher.Constraint("Vertical", 19),
    Sketcher.Constraint("Horizontal", 20),
    Sketcher.Constraint("Vertical", 21),
    Sketcher.Constraint("Horizontal", 22),
    Sketcher.Constraint("Vertical", 23),
    Sketcher.Constraint("Horizontal", 24),
    Sketcher.Constraint("Vertical", 25),
    Sketcher.Constraint("Horizontal", 26),
    Sketcher.Constraint("Vertical", 27),
    Sketcher.Constraint("Horizontal", 28),
    Sketcher.Constraint("Vertical", 29),
    Sketcher.Constraint("Horizontal", 30),
    Sketcher.Constraint("Vertical", 31),
    Sketcher.Constraint("Horizontal", 32),
    Sketcher.Constraint("Vertical", 33),
    Sketcher.Constraint("Horizontal", 34),
    Sketcher.Constraint("Vertical", 35),
    Sketcher.Constraint("Horizontal", 36),
    Sketcher.Constraint("Vertical", 37),
    Sketcher.Constraint("Horizontal", 38),
    Sketcher.Constraint("Vertical", 39),
    Sketcher.Constraint("Horizontal", 40),
    Sketcher.Constraint("Vertical", 41),
    Sketcher.Constraint("Horizontal", 42),
    Sketcher.Constraint("Vertical", 43),
    Sketcher.Constraint("Horizontal", 44),
    Sketcher.Constraint("Vertical", 45),
    Sketcher.Constraint("Horizontal", 46),
    Sketcher.Constraint("Vertical", 47),
    Sketcher.Constraint("Coincident", 6, 2, 0, 2),
    Sketcher.Constraint("Coincident", 10, 2, 4, 2),
    Sketcher.Constraint("Coincident", 14, 2, 8, 2),
    Sketcher.Constraint("Coincident", 18, 2, 12, 2),
    Sketcher.Constraint("Coincident", 22, 2, 16, 2),
    Sketcher.Constraint("Coincident", 26, 2, 20, 2),
    Sketcher.Constraint("Coincident", 30, 2, 24, 2),
    Sketcher.Constraint("Coincident", 34, 2, 28, 2),
    Sketcher.Constraint("Coincident", 38, 2, 32, 2),
    Sketcher.Constraint("Coincident", 42, 2, 36, 2),
    Sketcher.Constraint("Coincident", 44, 2, 40, 2),
    Sketcher.Constraint("PointOnObject", 45, 2, -1),
    Sketcher.Constraint("Equal", 2, 4),
    Sketcher.Constraint("Equal", 6, 8),
    Sketcher.Constraint("Equal", 10, 12),
    Sketcher.Constraint("Equal", 14, 16),
    Sketcher.Constraint("Equal", 18, 20),
    Sketcher.Constraint("Equal", 22, 24),
    Sketcher.Constraint("Equal", 26, 28),
    Sketcher.Constraint("Equal", 30, 32),
    Sketcher.Constraint("Equal", 34, 36),
    Sketcher.Constraint("Equal", 38, 40),
    Sketcher.Constraint("Equal", 42, 44),
    Sketcher.Constraint("Equal", 46, 1),
    Sketcher.Constraint("Equal", 3, 5),
    Sketcher.Constraint("Equal", 7, 9),
    Sketcher.Constraint("Equal", 11, 13),
    Sketcher.Constraint("Equal", 15, 17),
    Sketcher.Constraint("Equal", 19, 21),
    Sketcher.Constraint("Equal", 23, 25),
    Sketcher.Constraint("Equal", 27, 29),
    Sketcher.Constraint("Equal", 31, 33),
    Sketcher.Constraint("Equal", 35, 37),
    Sketcher.Constraint("Equal", 39, 41),
    Sketcher.Constraint("Equal", 43, 45),
    Sketcher.Constraint("DistanceX", 0, 2, 0, 1, Q("8 in")),
    Sketcher.Constraint("DistanceX", -1, 1, 0, 2, Q("85.5 in")),
])
pad5 = doc.addObject("PartDesign::Pad", "Pad004")
body.addObject(pad5)
pad5.Profile = sketch9
pad5.Length = Q("38 in")
pad5.Reversed = True

sketch10 = doc.addObject("Sketcher::SketchObject", "Sketch009")
body.addObject(sketch10)
sketch10.AttachmentSupport = (doc.XY_Plane, [""])
sketch10.MapMode = "FlatFace"
sketch10.AttachmentOffset = App.Placement(V(0, 0, -671.4866), App.Rotation())
add_polygon(sketch10, [(4108.45, 2082.8), (4108.45, 0), (3397.25, 0), (3397.25, 2082.8)])
sketch10.addConstraint([
    Sketcher.Constraint("Vertical", 0),
    Sketcher.Constraint("Horizontal", 1),
    Sketcher.Constraint("Vertical", 2),
    Sketcher.Constraint("Horizontal", 3),
    Sketcher.Constraint("PointOnObject", 0, 2, -1),
    Sketcher.Constraint("DistanceX", 1, 2, 1, 1, Q("28 in")),
    Sketcher.Constraint("DistanceY", 0, 2, 0, 1, Q("82 in")),
    Sketcher.Constraint("DistanceX", -1, 1, 0, 2, Q("161.75 in")),
])
pocket5 = doc.addObject("PartDesign::Pocket", "Pocket004")
body.addObject(pocket5)
pocket5.Profile = sketch10
pocket5.Length = Q("4.5 in")
pocket5.Reversed = True

doc.recompute()
